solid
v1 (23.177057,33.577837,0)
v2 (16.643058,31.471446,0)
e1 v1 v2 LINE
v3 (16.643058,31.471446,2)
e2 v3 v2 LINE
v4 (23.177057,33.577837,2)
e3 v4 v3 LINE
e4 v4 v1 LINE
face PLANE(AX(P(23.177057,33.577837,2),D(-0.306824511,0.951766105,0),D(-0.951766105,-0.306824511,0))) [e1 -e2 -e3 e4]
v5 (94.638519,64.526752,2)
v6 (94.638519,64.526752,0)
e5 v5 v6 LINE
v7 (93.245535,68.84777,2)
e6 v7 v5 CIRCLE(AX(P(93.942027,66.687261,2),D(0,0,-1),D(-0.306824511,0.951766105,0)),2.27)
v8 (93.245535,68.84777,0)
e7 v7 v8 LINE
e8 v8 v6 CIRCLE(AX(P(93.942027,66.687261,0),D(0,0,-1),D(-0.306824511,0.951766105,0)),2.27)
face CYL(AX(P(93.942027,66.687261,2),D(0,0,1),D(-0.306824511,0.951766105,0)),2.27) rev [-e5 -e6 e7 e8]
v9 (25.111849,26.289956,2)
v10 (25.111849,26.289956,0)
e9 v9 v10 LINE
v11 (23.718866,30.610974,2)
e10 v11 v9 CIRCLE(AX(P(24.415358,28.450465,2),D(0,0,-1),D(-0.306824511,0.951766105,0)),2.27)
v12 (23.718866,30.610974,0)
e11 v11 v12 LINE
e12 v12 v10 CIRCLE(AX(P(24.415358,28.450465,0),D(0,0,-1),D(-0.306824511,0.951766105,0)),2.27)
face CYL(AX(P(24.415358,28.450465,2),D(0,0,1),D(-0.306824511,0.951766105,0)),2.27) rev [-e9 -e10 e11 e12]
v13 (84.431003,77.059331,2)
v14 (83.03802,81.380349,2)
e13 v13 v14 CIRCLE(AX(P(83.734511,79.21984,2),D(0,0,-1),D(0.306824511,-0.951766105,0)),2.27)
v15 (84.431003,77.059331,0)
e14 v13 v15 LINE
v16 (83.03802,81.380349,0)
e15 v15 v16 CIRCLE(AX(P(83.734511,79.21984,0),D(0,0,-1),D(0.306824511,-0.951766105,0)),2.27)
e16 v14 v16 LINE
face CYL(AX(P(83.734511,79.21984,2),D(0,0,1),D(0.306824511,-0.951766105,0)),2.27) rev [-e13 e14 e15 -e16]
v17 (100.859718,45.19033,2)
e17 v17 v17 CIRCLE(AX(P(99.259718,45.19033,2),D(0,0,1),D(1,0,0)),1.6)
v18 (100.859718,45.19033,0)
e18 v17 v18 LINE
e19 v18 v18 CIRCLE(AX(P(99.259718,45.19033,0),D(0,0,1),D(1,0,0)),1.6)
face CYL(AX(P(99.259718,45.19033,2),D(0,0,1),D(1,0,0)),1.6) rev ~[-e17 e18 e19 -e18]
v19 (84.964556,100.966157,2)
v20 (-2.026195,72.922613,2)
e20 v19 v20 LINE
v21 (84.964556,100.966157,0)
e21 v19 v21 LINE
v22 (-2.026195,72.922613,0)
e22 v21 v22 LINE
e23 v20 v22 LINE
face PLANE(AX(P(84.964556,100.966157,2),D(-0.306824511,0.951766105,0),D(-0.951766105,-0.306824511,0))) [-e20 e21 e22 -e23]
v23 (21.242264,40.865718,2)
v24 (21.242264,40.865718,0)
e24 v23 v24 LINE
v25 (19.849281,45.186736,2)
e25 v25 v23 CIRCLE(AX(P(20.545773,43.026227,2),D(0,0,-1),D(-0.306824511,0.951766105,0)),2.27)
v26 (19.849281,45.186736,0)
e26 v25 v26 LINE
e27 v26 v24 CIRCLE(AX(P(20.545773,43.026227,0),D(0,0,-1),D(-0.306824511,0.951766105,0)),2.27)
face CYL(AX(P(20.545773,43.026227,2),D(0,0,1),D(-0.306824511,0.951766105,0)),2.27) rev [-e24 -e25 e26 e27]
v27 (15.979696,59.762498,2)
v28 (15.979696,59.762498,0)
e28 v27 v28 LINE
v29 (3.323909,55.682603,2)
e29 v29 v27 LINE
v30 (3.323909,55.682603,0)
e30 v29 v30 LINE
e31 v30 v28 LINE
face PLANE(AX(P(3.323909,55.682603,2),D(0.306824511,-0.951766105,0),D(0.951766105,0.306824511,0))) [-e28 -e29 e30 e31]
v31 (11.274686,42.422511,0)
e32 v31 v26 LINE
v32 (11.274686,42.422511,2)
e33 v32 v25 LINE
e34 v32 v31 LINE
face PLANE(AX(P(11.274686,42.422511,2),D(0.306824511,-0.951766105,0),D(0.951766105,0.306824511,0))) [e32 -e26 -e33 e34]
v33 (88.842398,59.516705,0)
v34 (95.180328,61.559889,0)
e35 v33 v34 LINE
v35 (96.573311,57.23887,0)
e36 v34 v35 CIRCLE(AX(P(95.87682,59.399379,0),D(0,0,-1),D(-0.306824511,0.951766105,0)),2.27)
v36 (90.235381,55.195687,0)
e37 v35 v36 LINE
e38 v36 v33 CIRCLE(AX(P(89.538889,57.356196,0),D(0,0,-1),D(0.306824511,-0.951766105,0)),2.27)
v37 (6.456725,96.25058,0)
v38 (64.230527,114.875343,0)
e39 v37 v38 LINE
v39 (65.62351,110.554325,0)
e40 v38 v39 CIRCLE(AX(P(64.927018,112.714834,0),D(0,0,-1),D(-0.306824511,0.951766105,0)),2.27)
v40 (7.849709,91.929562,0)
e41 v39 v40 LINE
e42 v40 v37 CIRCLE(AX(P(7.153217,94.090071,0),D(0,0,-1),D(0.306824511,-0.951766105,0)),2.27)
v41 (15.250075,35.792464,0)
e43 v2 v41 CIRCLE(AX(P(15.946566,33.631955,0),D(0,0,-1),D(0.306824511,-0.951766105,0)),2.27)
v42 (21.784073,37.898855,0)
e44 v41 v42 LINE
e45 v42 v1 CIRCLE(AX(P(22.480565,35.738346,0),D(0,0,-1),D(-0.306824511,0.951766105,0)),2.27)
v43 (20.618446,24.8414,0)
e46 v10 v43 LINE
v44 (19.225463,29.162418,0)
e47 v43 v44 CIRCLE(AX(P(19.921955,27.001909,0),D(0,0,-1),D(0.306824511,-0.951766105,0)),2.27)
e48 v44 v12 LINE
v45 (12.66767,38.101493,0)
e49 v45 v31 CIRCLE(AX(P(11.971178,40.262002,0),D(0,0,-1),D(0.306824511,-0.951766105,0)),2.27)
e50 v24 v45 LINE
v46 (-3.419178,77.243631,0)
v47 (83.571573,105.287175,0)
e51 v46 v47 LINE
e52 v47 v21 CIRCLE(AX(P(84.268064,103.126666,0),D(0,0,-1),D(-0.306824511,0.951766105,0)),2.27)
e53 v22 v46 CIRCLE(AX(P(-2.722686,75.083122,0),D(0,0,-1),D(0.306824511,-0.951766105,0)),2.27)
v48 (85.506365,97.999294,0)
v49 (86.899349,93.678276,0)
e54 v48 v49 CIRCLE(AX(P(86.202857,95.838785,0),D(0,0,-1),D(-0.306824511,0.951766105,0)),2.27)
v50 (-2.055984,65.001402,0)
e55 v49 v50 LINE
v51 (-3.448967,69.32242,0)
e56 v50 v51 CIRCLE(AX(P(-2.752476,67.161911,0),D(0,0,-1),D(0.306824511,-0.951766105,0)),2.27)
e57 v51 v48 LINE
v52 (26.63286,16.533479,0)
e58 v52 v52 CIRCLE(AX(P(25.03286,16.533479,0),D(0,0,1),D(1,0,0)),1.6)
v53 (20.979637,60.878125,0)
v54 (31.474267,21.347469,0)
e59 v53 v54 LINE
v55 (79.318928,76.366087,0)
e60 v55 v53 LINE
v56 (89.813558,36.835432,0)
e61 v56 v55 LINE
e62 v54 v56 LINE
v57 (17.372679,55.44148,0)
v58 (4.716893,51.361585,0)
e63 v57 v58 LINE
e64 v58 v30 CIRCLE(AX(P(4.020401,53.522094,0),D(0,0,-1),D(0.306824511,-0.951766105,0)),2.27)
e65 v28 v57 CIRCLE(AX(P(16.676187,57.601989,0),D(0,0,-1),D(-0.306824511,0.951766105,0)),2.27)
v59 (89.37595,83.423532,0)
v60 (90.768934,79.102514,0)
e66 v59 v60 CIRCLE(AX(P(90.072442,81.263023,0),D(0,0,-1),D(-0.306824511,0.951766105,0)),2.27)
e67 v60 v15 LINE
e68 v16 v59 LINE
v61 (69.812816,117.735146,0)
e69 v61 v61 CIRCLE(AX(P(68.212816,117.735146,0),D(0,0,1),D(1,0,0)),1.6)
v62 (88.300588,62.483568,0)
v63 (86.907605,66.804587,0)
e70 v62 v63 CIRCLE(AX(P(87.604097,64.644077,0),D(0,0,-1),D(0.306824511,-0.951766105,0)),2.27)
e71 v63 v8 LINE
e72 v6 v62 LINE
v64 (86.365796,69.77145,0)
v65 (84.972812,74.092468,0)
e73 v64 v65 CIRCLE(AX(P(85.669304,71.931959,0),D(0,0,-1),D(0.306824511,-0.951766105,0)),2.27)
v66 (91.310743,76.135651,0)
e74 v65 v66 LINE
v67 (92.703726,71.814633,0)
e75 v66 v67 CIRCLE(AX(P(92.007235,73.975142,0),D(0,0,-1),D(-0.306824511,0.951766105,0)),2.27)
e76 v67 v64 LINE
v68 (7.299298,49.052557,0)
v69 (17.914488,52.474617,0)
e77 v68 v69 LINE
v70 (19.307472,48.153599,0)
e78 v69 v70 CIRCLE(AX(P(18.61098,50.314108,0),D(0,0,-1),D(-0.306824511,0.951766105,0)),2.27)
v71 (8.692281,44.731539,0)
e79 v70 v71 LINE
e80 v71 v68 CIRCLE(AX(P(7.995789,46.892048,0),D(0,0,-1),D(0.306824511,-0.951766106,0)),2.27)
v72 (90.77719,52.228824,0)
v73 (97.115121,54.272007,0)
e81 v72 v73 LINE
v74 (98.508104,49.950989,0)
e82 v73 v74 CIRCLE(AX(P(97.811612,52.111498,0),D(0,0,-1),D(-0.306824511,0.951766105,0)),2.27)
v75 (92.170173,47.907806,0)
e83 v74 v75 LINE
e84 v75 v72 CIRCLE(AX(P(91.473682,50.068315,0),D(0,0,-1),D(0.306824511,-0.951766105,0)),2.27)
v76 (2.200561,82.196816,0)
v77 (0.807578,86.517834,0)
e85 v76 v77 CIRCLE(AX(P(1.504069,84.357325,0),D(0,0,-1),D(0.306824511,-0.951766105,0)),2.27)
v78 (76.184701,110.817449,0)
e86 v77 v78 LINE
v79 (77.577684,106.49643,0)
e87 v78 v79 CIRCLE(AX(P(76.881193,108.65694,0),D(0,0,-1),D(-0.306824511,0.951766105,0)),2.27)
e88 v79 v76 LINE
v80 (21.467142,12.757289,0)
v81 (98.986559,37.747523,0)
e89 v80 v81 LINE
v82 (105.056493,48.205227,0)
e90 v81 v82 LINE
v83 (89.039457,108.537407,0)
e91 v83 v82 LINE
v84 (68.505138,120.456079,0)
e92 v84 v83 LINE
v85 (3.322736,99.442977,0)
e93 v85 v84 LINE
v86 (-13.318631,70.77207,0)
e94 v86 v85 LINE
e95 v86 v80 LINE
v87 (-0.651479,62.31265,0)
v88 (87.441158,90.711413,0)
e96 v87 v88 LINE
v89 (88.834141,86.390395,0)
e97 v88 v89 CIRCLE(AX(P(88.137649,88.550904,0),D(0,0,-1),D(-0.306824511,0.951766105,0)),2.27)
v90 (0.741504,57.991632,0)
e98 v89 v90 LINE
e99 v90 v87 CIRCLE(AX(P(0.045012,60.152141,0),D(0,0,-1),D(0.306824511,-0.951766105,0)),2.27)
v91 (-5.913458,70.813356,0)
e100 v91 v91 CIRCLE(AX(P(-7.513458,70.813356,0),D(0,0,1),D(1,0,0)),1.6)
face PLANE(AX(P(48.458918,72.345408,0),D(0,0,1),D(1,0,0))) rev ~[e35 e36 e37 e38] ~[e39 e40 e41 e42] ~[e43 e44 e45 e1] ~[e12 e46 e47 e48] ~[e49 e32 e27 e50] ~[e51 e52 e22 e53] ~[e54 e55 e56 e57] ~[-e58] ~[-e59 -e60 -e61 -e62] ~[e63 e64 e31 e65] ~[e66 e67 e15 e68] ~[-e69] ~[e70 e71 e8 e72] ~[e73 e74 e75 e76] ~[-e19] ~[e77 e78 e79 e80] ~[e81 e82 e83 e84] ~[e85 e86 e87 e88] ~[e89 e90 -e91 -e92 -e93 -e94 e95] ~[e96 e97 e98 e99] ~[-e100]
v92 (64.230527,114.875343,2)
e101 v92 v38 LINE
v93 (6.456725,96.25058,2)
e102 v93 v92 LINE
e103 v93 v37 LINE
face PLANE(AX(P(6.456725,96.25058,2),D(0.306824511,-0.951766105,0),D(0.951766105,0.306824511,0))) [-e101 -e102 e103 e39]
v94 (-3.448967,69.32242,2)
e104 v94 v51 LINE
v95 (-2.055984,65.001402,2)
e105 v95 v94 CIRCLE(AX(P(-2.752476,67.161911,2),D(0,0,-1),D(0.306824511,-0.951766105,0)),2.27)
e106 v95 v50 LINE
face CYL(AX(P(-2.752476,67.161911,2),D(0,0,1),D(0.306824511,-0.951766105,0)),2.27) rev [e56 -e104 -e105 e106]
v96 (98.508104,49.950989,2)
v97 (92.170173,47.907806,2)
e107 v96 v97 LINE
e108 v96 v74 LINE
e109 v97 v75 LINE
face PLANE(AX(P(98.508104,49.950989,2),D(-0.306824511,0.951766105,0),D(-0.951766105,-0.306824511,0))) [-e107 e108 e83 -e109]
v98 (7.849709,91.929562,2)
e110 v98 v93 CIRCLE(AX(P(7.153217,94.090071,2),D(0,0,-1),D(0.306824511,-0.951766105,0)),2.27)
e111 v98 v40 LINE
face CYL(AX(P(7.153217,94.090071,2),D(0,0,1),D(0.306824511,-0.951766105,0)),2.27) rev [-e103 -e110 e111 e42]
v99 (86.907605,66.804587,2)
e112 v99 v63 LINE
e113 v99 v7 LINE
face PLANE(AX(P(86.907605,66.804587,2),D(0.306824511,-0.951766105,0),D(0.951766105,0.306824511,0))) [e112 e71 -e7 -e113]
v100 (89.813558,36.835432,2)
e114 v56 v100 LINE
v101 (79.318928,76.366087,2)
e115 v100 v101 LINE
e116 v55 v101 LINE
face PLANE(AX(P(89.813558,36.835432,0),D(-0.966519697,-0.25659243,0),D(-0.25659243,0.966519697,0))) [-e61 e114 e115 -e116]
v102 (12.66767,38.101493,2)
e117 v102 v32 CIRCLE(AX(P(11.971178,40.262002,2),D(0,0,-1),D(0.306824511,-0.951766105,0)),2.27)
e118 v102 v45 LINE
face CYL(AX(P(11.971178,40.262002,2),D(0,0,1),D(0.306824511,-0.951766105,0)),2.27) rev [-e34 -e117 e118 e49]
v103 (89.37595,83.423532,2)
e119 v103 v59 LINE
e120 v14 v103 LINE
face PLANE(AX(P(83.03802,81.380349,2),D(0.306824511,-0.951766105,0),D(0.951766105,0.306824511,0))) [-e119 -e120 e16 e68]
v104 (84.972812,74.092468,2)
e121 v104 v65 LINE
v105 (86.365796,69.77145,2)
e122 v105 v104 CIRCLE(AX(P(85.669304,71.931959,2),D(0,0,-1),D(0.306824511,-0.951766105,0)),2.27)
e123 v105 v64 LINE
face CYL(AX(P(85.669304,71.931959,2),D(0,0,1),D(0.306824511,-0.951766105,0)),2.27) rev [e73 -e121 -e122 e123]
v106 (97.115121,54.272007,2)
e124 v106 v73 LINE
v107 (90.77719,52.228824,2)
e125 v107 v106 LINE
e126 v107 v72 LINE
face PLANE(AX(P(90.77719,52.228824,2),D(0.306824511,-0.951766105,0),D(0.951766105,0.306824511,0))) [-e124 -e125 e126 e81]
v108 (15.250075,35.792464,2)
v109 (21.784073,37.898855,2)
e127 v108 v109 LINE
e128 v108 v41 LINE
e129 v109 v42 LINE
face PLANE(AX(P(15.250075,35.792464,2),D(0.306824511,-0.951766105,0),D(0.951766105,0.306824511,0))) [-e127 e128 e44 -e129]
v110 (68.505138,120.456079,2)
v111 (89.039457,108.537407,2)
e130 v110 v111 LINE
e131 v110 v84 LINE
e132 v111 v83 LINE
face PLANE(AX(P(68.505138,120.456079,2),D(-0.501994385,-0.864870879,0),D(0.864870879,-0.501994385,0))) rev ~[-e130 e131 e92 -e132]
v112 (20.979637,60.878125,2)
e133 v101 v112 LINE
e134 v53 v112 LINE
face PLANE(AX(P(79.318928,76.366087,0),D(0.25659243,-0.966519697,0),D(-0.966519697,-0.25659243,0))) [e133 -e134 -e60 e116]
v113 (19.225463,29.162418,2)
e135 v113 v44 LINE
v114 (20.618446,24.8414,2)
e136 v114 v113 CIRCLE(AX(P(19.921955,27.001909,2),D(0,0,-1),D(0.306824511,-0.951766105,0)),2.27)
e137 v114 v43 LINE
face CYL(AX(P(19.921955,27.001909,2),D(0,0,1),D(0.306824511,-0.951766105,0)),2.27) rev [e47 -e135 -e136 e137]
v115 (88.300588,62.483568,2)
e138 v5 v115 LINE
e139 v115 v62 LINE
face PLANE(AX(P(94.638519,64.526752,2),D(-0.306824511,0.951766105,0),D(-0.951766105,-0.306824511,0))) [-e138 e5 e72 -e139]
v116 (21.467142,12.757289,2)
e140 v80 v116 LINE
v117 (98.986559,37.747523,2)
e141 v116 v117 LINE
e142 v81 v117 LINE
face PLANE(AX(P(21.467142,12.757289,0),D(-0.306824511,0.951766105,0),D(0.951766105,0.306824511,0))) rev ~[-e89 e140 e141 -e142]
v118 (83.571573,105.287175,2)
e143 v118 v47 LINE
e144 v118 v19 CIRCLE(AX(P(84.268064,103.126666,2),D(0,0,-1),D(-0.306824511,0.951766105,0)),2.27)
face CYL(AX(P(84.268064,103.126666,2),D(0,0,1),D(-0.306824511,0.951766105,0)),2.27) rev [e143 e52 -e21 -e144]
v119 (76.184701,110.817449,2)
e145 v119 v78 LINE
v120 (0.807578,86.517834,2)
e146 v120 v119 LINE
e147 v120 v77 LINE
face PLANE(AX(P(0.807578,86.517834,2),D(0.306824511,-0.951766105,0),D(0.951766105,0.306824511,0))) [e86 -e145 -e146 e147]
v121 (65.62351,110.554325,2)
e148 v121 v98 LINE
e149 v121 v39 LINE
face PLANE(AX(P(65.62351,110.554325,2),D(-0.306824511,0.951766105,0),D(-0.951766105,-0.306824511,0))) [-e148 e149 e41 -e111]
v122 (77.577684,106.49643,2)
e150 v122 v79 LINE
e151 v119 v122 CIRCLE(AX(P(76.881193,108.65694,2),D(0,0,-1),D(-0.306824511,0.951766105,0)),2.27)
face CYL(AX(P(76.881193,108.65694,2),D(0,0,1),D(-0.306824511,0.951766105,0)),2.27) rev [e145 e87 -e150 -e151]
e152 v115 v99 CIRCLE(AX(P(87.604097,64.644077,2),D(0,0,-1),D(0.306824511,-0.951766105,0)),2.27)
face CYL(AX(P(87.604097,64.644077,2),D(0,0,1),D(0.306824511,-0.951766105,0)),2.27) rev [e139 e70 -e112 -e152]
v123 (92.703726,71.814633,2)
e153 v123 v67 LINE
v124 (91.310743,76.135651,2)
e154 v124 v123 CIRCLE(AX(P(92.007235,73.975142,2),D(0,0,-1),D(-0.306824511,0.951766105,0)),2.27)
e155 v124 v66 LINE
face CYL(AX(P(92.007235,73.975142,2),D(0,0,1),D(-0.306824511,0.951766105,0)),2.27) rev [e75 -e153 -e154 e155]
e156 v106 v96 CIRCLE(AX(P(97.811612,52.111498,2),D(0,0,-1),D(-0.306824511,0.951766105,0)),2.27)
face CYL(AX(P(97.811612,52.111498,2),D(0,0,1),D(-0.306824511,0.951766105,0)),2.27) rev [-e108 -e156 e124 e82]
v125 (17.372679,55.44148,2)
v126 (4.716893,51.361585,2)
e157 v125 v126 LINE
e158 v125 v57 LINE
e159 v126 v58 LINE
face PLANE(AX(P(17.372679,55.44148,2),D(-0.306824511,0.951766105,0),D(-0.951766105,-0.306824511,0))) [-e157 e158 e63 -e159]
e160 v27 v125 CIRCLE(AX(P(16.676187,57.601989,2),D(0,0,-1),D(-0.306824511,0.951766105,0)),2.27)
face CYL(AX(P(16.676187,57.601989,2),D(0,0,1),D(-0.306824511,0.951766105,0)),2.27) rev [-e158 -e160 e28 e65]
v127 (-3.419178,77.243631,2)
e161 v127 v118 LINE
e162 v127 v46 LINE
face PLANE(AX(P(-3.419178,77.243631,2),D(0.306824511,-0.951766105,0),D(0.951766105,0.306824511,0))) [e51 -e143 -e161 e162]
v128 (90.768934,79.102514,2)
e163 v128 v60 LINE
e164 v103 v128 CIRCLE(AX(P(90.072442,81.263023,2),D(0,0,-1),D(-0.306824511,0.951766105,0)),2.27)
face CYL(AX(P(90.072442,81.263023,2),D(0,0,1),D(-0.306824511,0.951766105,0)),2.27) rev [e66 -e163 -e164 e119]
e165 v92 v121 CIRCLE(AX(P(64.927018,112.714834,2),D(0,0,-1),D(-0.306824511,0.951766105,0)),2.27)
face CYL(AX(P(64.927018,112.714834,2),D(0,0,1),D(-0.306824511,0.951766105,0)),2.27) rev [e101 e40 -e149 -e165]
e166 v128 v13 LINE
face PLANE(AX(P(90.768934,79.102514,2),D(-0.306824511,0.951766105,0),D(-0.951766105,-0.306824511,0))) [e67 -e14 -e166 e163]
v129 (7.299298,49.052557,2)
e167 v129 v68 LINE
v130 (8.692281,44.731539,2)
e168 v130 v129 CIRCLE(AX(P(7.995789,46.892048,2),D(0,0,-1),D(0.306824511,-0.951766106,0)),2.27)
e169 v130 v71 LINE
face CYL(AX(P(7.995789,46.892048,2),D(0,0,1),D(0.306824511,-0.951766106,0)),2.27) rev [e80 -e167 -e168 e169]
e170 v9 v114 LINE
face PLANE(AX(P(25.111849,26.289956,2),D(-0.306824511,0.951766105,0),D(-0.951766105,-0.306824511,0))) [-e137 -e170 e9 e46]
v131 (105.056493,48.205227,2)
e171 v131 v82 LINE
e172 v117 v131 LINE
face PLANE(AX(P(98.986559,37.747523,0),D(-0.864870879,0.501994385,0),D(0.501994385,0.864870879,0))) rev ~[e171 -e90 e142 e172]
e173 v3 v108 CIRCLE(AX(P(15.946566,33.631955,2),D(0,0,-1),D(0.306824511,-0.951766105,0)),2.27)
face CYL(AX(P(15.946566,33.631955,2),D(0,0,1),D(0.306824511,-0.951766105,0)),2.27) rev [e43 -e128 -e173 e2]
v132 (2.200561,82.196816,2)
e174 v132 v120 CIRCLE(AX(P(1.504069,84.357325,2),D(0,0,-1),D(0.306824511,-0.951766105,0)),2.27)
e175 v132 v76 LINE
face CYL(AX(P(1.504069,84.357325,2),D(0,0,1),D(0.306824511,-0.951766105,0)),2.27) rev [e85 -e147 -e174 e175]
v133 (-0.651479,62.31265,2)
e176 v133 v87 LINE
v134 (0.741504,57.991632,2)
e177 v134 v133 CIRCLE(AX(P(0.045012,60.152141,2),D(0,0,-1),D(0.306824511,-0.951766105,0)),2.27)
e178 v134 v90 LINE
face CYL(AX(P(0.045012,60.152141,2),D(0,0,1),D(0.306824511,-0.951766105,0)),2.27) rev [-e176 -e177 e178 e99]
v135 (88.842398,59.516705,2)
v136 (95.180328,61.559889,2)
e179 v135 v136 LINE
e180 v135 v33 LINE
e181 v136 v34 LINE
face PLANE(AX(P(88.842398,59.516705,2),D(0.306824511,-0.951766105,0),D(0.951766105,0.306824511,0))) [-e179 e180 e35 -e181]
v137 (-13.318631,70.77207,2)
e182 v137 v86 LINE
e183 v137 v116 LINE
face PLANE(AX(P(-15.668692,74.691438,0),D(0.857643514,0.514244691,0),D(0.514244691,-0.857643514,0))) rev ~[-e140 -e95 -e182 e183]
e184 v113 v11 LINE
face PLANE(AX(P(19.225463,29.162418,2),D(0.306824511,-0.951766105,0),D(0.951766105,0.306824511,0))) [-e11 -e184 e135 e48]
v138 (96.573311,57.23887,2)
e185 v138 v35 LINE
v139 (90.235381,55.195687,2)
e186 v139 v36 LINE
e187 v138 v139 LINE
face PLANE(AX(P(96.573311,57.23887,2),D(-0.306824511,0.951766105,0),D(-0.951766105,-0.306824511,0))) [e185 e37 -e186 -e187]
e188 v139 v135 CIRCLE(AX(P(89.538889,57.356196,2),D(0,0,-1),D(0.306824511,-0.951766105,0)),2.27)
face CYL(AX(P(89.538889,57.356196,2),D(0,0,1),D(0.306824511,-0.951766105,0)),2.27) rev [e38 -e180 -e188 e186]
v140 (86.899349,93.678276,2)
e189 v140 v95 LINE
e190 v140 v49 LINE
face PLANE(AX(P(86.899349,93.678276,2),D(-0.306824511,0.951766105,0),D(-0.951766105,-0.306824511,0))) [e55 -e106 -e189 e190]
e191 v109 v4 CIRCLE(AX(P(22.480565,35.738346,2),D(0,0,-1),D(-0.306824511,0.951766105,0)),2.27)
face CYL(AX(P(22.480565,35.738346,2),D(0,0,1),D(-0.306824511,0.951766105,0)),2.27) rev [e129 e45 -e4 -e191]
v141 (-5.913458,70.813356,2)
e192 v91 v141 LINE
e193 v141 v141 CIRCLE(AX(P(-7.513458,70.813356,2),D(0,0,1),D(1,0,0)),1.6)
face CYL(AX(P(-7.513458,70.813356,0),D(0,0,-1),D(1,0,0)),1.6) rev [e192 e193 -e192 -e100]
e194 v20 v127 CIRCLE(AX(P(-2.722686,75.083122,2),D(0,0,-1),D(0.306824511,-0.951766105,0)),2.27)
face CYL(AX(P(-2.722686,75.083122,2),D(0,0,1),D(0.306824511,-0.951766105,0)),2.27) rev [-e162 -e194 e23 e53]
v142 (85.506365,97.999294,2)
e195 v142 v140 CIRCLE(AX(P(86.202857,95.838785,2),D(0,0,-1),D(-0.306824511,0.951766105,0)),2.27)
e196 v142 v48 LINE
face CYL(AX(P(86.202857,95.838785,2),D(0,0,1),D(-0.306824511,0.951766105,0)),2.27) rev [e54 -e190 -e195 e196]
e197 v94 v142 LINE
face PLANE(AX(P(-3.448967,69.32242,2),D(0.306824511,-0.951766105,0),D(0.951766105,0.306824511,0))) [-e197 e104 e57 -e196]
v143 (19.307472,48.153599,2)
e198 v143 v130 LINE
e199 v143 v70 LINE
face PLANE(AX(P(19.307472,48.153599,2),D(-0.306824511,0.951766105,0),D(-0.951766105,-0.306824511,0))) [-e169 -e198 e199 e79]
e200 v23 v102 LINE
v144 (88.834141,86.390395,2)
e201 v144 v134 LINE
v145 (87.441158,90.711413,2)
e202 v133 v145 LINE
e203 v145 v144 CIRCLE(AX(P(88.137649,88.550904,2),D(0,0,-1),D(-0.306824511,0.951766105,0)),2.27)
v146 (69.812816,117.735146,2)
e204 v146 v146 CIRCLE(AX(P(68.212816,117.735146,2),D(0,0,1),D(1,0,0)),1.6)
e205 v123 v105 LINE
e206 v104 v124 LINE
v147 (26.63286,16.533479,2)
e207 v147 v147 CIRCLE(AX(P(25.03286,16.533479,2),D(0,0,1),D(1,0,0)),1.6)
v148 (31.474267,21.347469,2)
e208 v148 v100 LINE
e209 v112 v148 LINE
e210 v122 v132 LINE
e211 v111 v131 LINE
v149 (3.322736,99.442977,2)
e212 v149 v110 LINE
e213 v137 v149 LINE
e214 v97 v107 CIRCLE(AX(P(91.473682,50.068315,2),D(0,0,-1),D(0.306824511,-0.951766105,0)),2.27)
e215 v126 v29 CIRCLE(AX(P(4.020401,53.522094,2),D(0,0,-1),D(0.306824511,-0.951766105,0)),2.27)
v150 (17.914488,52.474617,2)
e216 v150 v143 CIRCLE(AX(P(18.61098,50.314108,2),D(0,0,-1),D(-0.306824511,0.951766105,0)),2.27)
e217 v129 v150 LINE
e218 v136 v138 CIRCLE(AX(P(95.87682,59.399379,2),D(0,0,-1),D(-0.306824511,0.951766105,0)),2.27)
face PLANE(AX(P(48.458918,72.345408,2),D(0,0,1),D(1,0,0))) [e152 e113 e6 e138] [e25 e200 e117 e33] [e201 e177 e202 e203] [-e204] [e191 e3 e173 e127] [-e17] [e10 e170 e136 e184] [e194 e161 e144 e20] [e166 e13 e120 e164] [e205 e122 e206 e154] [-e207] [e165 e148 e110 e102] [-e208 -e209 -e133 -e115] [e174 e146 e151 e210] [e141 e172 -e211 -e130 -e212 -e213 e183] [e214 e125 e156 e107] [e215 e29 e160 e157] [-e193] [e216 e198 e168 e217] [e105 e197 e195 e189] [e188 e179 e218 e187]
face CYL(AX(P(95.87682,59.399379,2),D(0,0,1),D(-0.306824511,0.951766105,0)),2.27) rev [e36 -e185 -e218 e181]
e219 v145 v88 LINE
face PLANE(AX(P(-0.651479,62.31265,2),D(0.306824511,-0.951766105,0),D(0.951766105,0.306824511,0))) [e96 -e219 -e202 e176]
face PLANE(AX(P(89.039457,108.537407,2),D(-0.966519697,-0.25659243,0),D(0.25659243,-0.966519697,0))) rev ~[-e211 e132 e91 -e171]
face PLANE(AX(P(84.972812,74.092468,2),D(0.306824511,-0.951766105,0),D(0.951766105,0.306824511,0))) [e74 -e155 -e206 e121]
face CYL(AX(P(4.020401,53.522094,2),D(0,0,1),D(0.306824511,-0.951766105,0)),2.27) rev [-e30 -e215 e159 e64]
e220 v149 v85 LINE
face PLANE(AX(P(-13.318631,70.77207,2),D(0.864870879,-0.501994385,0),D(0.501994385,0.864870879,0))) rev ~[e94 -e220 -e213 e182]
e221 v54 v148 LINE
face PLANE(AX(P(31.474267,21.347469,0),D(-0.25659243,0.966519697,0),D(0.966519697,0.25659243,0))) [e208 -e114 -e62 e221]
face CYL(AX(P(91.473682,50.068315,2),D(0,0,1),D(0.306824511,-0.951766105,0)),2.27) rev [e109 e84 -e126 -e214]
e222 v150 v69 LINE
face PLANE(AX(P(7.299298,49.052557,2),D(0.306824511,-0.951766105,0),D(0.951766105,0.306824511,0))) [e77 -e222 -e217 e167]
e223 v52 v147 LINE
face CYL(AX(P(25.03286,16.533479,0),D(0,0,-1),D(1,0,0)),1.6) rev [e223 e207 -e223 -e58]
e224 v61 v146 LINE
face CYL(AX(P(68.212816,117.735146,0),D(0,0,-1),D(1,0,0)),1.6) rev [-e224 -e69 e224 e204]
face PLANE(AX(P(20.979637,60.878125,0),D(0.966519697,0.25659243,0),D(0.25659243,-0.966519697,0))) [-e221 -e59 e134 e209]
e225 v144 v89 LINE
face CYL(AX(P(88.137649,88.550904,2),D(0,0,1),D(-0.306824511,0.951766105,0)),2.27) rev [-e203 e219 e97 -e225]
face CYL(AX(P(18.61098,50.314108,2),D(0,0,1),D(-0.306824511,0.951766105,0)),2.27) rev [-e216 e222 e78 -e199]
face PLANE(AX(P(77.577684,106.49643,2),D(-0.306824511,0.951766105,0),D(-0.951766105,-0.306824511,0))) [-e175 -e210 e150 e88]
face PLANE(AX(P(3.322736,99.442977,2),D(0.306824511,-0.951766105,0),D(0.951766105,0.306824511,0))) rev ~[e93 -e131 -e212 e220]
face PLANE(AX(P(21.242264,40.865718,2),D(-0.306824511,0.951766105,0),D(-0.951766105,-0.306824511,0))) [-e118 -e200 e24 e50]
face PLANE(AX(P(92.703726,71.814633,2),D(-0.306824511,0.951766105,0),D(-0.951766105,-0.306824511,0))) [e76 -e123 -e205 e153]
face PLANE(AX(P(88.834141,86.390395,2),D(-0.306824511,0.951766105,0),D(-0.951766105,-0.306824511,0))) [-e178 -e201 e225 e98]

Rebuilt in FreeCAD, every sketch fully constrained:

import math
import FreeCAD as App
import Part
import Sketcher
from FreeCAD import Vector

doc = App.newDocument("Part")
body = doc.addObject("PartDesign::Body", "Body")

sketch1 = body.newObject("Sketcher::SketchObject", "Sketch")
sketch1.AttachmentSupport = (doc.getObject("XY_Plane"), [""])
sketch1.MapMode = "FlatFace"
sketch1.addGeometry(Part.LineSegment(Vector(21.5, 12.8, 0), Vector(99, 37.7, 0)), False)
sketch1.addGeometry(Part.LineSegment(Vector(99, 37.7, 0), Vector(108.6, 54.3, 0)), False)
sketch1.addGeometry(Part.LineSegment(Vector(108.6, 54.3, 0), Vector(91.5, 118.7, 0)), False)
sketch1.addGeometry(Part.LineSegment(Vector(91.5, 118.7, 0), Vector(69.7, 131.3, 0)), False)
sketch1.addGeometry(Part.LineSegment(Vector(69.7, 131.3, 0), Vector(5.1, 110.5, 0)), False)
sketch1.addGeometry(Part.LineSegment(Vector(5.1, 110.5, 0), Vector(-15.7, 74.7, 0)), False)
sketch1.addGeometry(Part.LineSegment(Vector(-15.7, 74.7, 0), Vector(21.5, 12.8, 0)), False)
sketch1.addGeometry(Part.Circle(Vector(25, 16.5, 0), Vector(0, 0, 1), 1.6), False)
sketch1.addGeometry(Part.LineSegment(Vector(89.8, 36.8, 0), Vector(31.5, 21.3, 0)), False)
sketch1.addGeometry(Part.LineSegment(Vector(31.5, 21.3, 0), Vector(21, 60.9, 0)), False)
sketch1.addGeometry(Part.LineSegment(Vector(21, 60.9, 0), Vector(79.3, 76.4, 0)), False)
sketch1.addGeometry(Part.LineSegment(Vector(79.3, 76.4, 0), Vector(89.8, 36.8, 0)), False)
sketch1.addGeometry(Part.Circle(Vector(-7.5, 70.8, 0), Vector(0, 0, 1), 1.6), False)
sketch1.addGeometry(Part.Circle(Vector(68.2, 117.7, 0), Vector(0, 0, 1), 1.6), False)
sketch1.addConstraint(Sketcher.Constraint("Coincident", 0, 2, 1, 1))
sketch1.addConstraint(Sketcher.Constraint("Coincident", 1, 2, 2, 1))
sketch1.addConstraint(Sketcher.Constraint("Coincident", 2, 2, 3, 1))
sketch1.addConstraint(Sketcher.Constraint("Coincident", 3, 2, 4, 1))
sketch1.addConstraint(Sketcher.Constraint("Coincident", 4, 2, 5, 1))
sketch1.addConstraint(Sketcher.Constraint("Coincident", 5, 2, 6, 1))
sketch1.addConstraint(Sketcher.Constraint("Coincident", 6, 2, 0, 1))
sketch1.addConstraint(Sketcher.Constraint("Coincident", 8, 2, 9, 1))
sketch1.addConstraint(Sketcher.Constraint("Coincident", 9, 2, 10, 1))
sketch1.addConstraint(Sketcher.Constraint("Coincident", 10, 2, 11, 1))
sketch1.addConstraint(Sketcher.Constraint("Coincident", 11, 2, 8, 1))
sketch1.addConstraint(Sketcher.Constraint("Equal", 7, 12))
sketch1.addConstraint(Sketcher.Constraint("Equal", 12, 13))
sketch1.addConstraint(Sketcher.Constraint("Perpendicular", 1, 3))
sketch1.addConstraint(Sketcher.Constraint("Parallel", 0, 4))
sketch1.addConstraint(Sketcher.Constraint("Perpendicular", 3, 5))
sketch1.addConstraint(Sketcher.Constraint("Perpendicular", 2, 8))
sketch1.addConstraint(Sketcher.Constraint("Perpendicular", 8, 9))
sketch1.addConstraint(Sketcher.Constraint("Perpendicular", 9, 10))
sketch1.addConstraint(Sketcher.Constraint("Perpendicular", 10, 11))
sketch1.addConstraint(Sketcher.Constraint("Diameter", 7, 3.2))
sketch1.addConstraint(Sketcher.Constraint("Distance", 9, 40.9))
sketch1.addConstraint(Sketcher.Constraint("DistanceX", 11, 2, 0, 2, 9.173001))
sketch1.addConstraint(Sketcher.Constraint("DistanceY", -1, 1, 4, 2, 110.534101))
sketch1.addConstraint(Sketcher.Constraint("DistanceX", 7, 3, 0, 2, 73.953699))
sketch1.addConstraint(Sketcher.Constraint("DistanceY", 0, 2, 2, 2, 80.9089))
sketch1.addConstraint(Sketcher.Constraint("DistanceX", 3, 2, 1, 2, 38.9317))
sketch1.addConstraint(Sketcher.Constraint("DistanceX", 12, 3, 6, 2, 28.9806))
sketch1.addConstraint(Sketcher.Constraint("DistanceY", 6, 2, 1, 2, 41.563499))
sketch1.addConstraint(Sketcher.Constraint("DistanceX", 10, 2, 1, 2, 29.287201))
sketch1.addConstraint(Sketcher.Constraint("DistanceY", 1, 2, 10, 2, 22.045299))
sketch1.addConstraint(Sketcher.Constraint("Distance", 0, 81.447969))
sketch1.addConstraint(Sketcher.Constraint("Distance", 5, 41.442791))
sketch1.addConstraint(Sketcher.Constraint("DistanceX", -1, 1, 7, 3, 25.03286))
sketch1.addConstraint(Sketcher.Constraint("DistanceY", -1, 1, 7, 3, 16.533479))
sketch1.addConstraint(Sketcher.Constraint("DistanceX", 12, 3, -1, 1, 7.513458))
sketch1.addConstraint(Sketcher.Constraint("DistanceX", -1, 1, 1, 2, 108.606129))
sketch1.addConstraint(Sketcher.Constraint("DistanceY", -1, 1, 1, 2, 54.320788))
sketch1.addConstraint(Sketcher.Constraint("DistanceY", -1, 1, 8, 2, 21.347469))
sketch1.addConstraint(Sketcher.Constraint("DistanceY", 12, 3, 13, 3, 46.921791))
sketch1.addConstraint(Sketcher.Constraint("DistanceY", 1, 2, 13, 3, 63.414358))
sketch1.addConstraint(Sketcher.Constraint("DistanceX", 4, 2, 13, 3, 63.077459))
pad1 = body.newObject("PartDesign::Pad", "Pad")
pad1.Profile = sketch1
pad1.Length = 2

sketch2 = body.newObject("Sketcher::SketchObject", "Sketch001")
sketch2.AttachmentSupport = (doc.getObject("XY_Plane"), [""])
sketch2.MapMode = "FlatFace"
sketch2.AttachmentOffset = App.Placement(Vector(0, 0, 2), App.Rotation())
sketch2.addGeometry(Part.LineSegment(Vector(68.5, 120.5, 0), Vector(89, 108.5, 0)), False)
sketch2.addGeometry(Part.LineSegment(Vector(89, 108.5, 0), Vector(105.1, 48.2, 0)), False)
sketch2.addGeometry(Part.LineSegment(Vector(105.1, 48.2, 0), Vector(108.6, 54.3, 0)), False)
sketch2.addGeometry(Part.LineSegment(Vector(108.6, 54.3, 0), Vector(91.5, 118.7, 0)), False)
sketch2.addGeometry(Part.LineSegment(Vector(91.5, 118.7, 0), Vector(69.7, 131.3, 0)), False)
sketch2.addGeometry(Part.LineSegment(Vector(69.7, 131.3, 0), Vector(5.1, 110.5, 0)), False)
sketch2.addGeometry(Part.LineSegment(Vector(5.1, 110.5, 0), Vector(-15.7, 74.7, 0)), False)
sketch2.addGeometry(Part.LineSegment(Vector(-15.7, 74.7, 0), Vector(-13.3, 70.8, 0)), False)
sketch2.addGeometry(Part.LineSegment(Vector(-13.3, 70.8, 0), Vector(3.3, 99.4, 0)), False)
sketch2.addGeometry(Part.LineSegment(Vector(3.3, 99.4, 0), Vector(68.5, 120.5, 0)), False)
sketch2.addConstraint(Sketcher.Constraint("Coincident", 0, 2, 1, 1))
sketch2.addConstraint(Sketcher.Constraint("Coincident", 1, 2, 2, 1))
sketch2.addConstraint(Sketcher.Constraint("Coincident", 2, 2, 3, 1))
sketch2.addConstraint(Sketcher.Constraint("Coincident", 3, 2, 4, 1))
sketch2.addConstraint(Sketcher.Constraint("Coincident", 4, 2, 5, 1))
sketch2.addConstraint(Sketcher.Constraint("Coincident", 5, 2, 6, 1))
sketch2.addConstraint(Sketcher.Constraint("Coincident", 6, 2, 7, 1))
sketch2.addConstraint(Sketcher.Constraint("Coincident", 7, 2, 8, 1))
sketch2.addConstraint(Sketcher.Constraint("Coincident", 8, 2, 9, 1))
sketch2.addConstraint(Sketcher.Constraint("Coincident", 9, 2, 0, 1))
sketch2.addConstraint(Sketcher.Constraint("Perpendicular", 0, 2))
sketch2.addConstraint(Sketcher.Constraint("Parallel", 1, 3))
sketch2.addConstraint(Sketcher.Constraint("Perpendicular", 2, 4))
sketch2.addConstraint(Sketcher.Constraint("Perpendicular", 4, 6))
sketch2.addConstraint(Sketcher.Constraint("Parallel", 6, 8))
sketch2.addConstraint(Sketcher.Constraint("Parallel", 5, 9))
sketch2.addConstraint(Sketcher.Constraint("DistanceY", -1, 1, 5, 2, 110.534101))
sketch2.addConstraint(Sketcher.Constraint("DistanceX", 4, 2, 2, 2, 38.9317))
sketch2.addConstraint(Sketcher.Constraint("DistanceX", 5, 2, 0, 2, 83.904101))
sketch2.addConstraint(Sketcher.Constraint("DistanceX", 8, 2, 9, 2, 65.182402))
sketch2.addConstraint(Sketcher.Constraint("Distance", 0, 23.742641))
sketch2.addConstraint(Sketcher.Constraint("Distance", 1, 62.42209))
sketch2.addConstraint(Sketcher.Constraint("Distance", 6, 41.442791))
sketch2.addConstraint(Sketcher.Constraint("DistanceX", -1, 1, 2, 2, 108.606129))
sketch2.addConstraint(Sketcher.Constraint("DistanceY", -1, 1, 2, 2, 54.320788))
sketch2.addConstraint(Sketcher.Constraint("DistanceY", -1, 1, 4, 2, 131.339811))
sketch2.addConstraint(Sketcher.Constraint("DistanceX", 6, 2, -1, 1, 15.668692))
sketch2.addConstraint(Sketcher.Constraint("DistanceY", -1, 1, 6, 2, 74.691438))
sketch2.addConstraint(Sketcher.Constraint("DistanceX", 7, 2, -1, 1, 13.318631))
sketch2.addConstraint(Sketcher.Constraint("DistanceY", -1, 1, 7, 2, 70.77207))
pocket1 = body.newObject("PartDesign::Pocket", "Pocket")
pocket1.Profile = sketch2
pocket1.Length = 2

sketch3 = body.newObject("Sketcher::SketchObject", "Sketch002")
sketch3.AttachmentSupport = (doc.getObject("XY_Plane"), [""])
sketch3.MapMode = "FlatFace"
sketch3.AttachmentOffset = App.Placement(Vector(0, 0, 2), App.Rotation())
sketch3.addGeometry(Part.Circle(Vector(99.3, 45.2, 0), Vector(0, 0, 1), 1.6), False)
sketch3.addGeometry(Part.LineSegment(Vector(64.2, 114.9, 0), Vector(6.5, 96.3, 0)), False)
sketch3.addGeometry(Part.ArcOfCircle(Part.Circle(Vector(7.2, 94.1, 0), Vector(0, 0, 1), 2.3), math.radians(108), math.radians(288)), False)
sketch3.addGeometry(Part.LineSegment(Vector(7.8, 91.9, 0), Vector(65.6, 110.6, 0)), False)
sketch3.addGeometry(Part.ArcOfCircle(Part.Circle(Vector(64.9, 112.7, 0), Vector(0, 0, 1), 2.3), math.radians(-72), math.radians(108)), False)
sketch3.addGeometry(Part.LineSegment(Vector(76.2, 110.8, 0), Vector(0.8, 86.5, 0)), False)
sketch3.addGeometry(Part.ArcOfCircle(Part.Circle(Vector(1.5, 84.4, 0), Vector(0, 0, 1), 2.3), math.radians(108), math.radians(288)), False)
sketch3.addGeometry(Part.LineSegment(Vector(2.2, 82.2, 0), Vector(77.6, 106.5, 0)), False)
sketch3.addGeometry(Part.ArcOfCircle(Part.Circle(Vector(76.9, 108.7, 0), Vector(0, 0, 1), 2.3), math.radians(-72), math.radians(108)), False)
sketch3.addGeometry(Part.LineSegment(Vector(83.6, 105.3, 0), Vector(-3.4, 77.2, 0)), False)
sketch3.addGeometry(Part.ArcOfCircle(Part.Circle(Vector(-2.7, 75.1, 0), Vector(0, 0, 1), 2.3), math.radians(108), math.radians(288)), False)
sketch3.addGeometry(Part.LineSegment(Vector(-2, 72.9, 0), Vector(85, 101, 0)), False)
sketch3.addGeometry(Part.ArcOfCircle(Part.Circle(Vector(84.3, 103.1, 0), Vector(0, 0, 1), 2.3), math.radians(-72), math.radians(108)), False)
sketch3.addGeometry(Part.LineSegment(Vector(85.5, 98, 0), Vector(-3.4, 69.3, 0)), False)
sketch3.addGeometry(Part.ArcOfCircle(Part.Circle(Vector(-2.8, 67.2, 0), Vector(0, 0, 1), 2.3), math.radians(108), math.radians(288)), False)
sketch3.addGeometry(Part.LineSegment(Vector(-2.1, 65, 0), Vector(86.9, 93.7, 0)), False)
sketch3.addGeometry(Part.ArcOfCircle(Part.Circle(Vector(86.2, 95.8, 0), Vector(0, 0, 1), 2.3), math.radians(-72), math.radians(108)), False)
sketch3.addGeometry(Part.LineSegment(Vector(87.4, 90.7, 0), Vector(-0.7, 62.3, 0)), False)
sketch3.addGeometry(Part.ArcOfCircle(Part.Circle(Vector(0, 60.2, 0), Vector(0, 0, 1), 2.3), math.radians(108), math.radians(288)), False)
sketch3.addGeometry(Part.LineSegment(Vector(0.7, 58, 0), Vector(88.8, 86.4, 0)), False)
sketch3.addGeometry(Part.ArcOfCircle(Part.Circle(Vector(88.1, 88.6, 0), Vector(0, 0, 1), 2.3), math.radians(-72), math.radians(108)), False)
sketch3.addGeometry(Part.LineSegment(Vector(89.4, 83.4, 0), Vector(83, 81.4, 0)), False)
sketch3.addGeometry(Part.ArcOfCircle(Part.Circle(Vector(83.7, 79.2, 0), Vector(0, 0, 1), 2.3), math.radians(108), math.radians(288)), False)
sketch3.addGeometry(Part.LineSegment(Vector(84.4, 77.1, 0), Vector(90.8, 79.1, 0)), False)
sketch3.addGeometry(Part.ArcOfCircle(Part.Circle(Vector(90.1, 81.3, 0), Vector(0, 0, 1), 2.3), math.radians(-72), math.radians(108)), False)
sketch3.addGeometry(Part.LineSegment(Vector(16, 59.8, 0), Vector(3.3, 55.7, 0)), False)
sketch3.addGeometry(Part.ArcOfCircle(Part.Circle(Vector(4, 53.5, 0), Vector(0, 0, 1), 2.3), math.radians(108), math.radians(288)), False)
sketch3.addGeometry(Part.LineSegment(Vector(4.7, 51.4, 0), Vector(17.4, 55.4, 0)), False)
sketch3.addGeometry(Part.ArcOfCircle(Part.Circle(Vector(16.7, 57.6, 0), Vector(0, 0, 1), 2.3), math.radians(-72), math.radians(108)), False)
sketch3.addGeometry(Part.LineSegment(Vector(17.9, 52.5, 0), Vector(7.3, 49.1, 0)), False)
sketch3.addGeometry(Part.ArcOfCircle(Part.Circle(Vector(8, 46.9, 0), Vector(0, 0, 1), 2.3), math.radians(108), math.radians(288)), False)
sketch3.addGeometry(Part.LineSegment(Vector(8.7, 44.7, 0), Vector(19.3, 48.2, 0)), False)
sketch3.addGeometry(Part.ArcOfCircle(Part.Circle(Vector(18.6, 50.3, 0), Vector(0, 0, 1), 2.3), math.radians(-72), math.radians(108)), False)
sketch3.addGeometry(Part.LineSegment(Vector(19.8, 45.2, 0), Vector(11.3, 42.4, 0)), False)
sketch3.addGeometry(Part.ArcOfCircle(Part.Circle(Vector(12, 40.3, 0), Vector(0, 0, 1), 2.3), math.radians(108), math.radians(288)), False)
sketch3.addGeometry(Part.LineSegment(Vector(12.7, 38.1, 0), Vector(21.2, 40.9, 0)), False)
sketch3.addGeometry(Part.ArcOfCircle(Part.Circle(Vector(20.5, 43, 0), Vector(0, 0, 1), 2.3), math.radians(-72), math.radians(108)), False)
sketch3.addGeometry(Part.LineSegment(Vector(21.8, 37.9, 0), Vector(15.3, 35.8, 0)), False)
sketch3.addGeometry(Part.ArcOfCircle(Part.Circle(Vector(15.9, 33.6, 0), Vector(0, 0, 1), 2.3), math.radians(108), math.radians(288)), False)
sketch3.addGeometry(Part.LineSegment(Vector(16.6, 31.5, 0), Vector(23.2, 33.6, 0)), False)
sketch3.addGeometry(Part.ArcOfCircle(Part.Circle(Vector(22.5, 35.7, 0), Vector(0, 0, 1), 2.3), math.radians(-72), math.radians(108)), False)
sketch3.addGeometry(Part.LineSegment(Vector(23.7, 30.6, 0), Vector(19.2, 29.2, 0)), False)
sketch3.addGeometry(Part.ArcOfCircle(Part.Circle(Vector(19.9, 27, 0), Vector(0, 0, 1), 2.3), math.radians(108), math.radians(288)), False)
sketch3.addGeometry(Part.LineSegment(Vector(20.6, 24.8, 0), Vector(25.1, 26.3, 0)), False)
sketch3.addGeometry(Part.ArcOfCircle(Part.Circle(Vector(24.4, 28.5, 0), Vector(0, 0, 1), 2.3), math.radians(-72), math.radians(108)), False)
sketch3.addGeometry(Part.LineSegment(Vector(91.3, 76.1, 0), Vector(85, 74.1, 0)), False)
sketch3.addGeometry(Part.ArcOfCircle(Part.Circle(Vector(85.7, 71.9, 0), Vector(0, 0, 1), 2.3), math.radians(108), math.radians(288)), False)
sketch3.addGeometry(Part.LineSegment(Vector(86.4, 69.8, 0), Vector(92.7, 71.8, 0)), False)
sketch3.addGeometry(Part.ArcOfCircle(Part.Circle(Vector(92, 74, 0), Vector(0, 0, 1), 2.3), math.radians(-72), math.radians(108)), False)
sketch3.addGeometry(Part.LineSegment(Vector(93.2, 68.8, 0), Vector(86.9, 66.8, 0)), False)
sketch3.addGeometry(Part.ArcOfCircle(Part.Circle(Vector(87.6, 64.6, 0), Vector(0, 0, 1), 2.3), math.radians(108), math.radians(288)), False)
sketch3.addGeometry(Part.LineSegment(Vector(88.3, 62.5, 0), Vector(94.6, 64.5, 0)), False)
sketch3.addGeometry(Part.ArcOfCircle(Part.Circle(Vector(93.9, 66.7, 0), Vector(0, 0, 1), 2.3), math.radians(-72), math.radians(108)), False)
sketch3.addGeometry(Part.LineSegment(Vector(95.2, 61.6, 0), Vector(88.8, 59.5, 0)), False)
sketch3.addGeometry(Part.ArcOfCircle(Part.Circle(Vector(89.5, 57.4, 0), Vector(0, 0, 1), 2.3), math.radians(108), math.radians(288)), False)
sketch3.addGeometry(Part.LineSegment(Vector(90.2, 55.2, 0), Vector(96.6, 57.2, 0)), False)
sketch3.addGeometry(Part.ArcOfCircle(Part.Circle(Vector(95.9, 59.4, 0), Vector(0, 0, 1), 2.3), math.radians(-72), math.radians(108)), False)
sketch3.addGeometry(Part.LineSegment(Vector(97.1, 54.3, 0), Vector(90.8, 52.2, 0)), False)
sketch3.addGeometry(Part.ArcOfCircle(Part.Circle(Vector(91.5, 50.1, 0), Vector(0, 0, 1), 2.3), math.radians(108), math.radians(288)), False)
sketch3.addGeometry(Part.LineSegment(Vector(92.2, 47.9, 0), Vector(98.5, 50, 0)), False)
sketch3.addGeometry(Part.ArcOfCircle(Part.Circle(Vector(97.8, 52.1, 0), Vector(0, 0, 1), 2.3), math.radians(-72), math.radians(108)), False)
sketch3.addConstraint(Sketcher.Constraint("Tangent", 1, 2, 2, 1))
sketch3.addConstraint(Sketcher.Constraint("Tangent", 2, 2, 3, 1))
sketch3.addConstraint(Sketcher.Constraint("Tangent", 3, 2, 4, 1))
sketch3.addConstraint(Sketcher.Constraint("Tangent", 4, 2, 1, 1))
sketch3.addConstraint(Sketcher.Constraint("Tangent", 5, 2, 6, 1))
sketch3.addConstraint(Sketcher.Constraint("Tangent", 6, 2, 7, 1))
sketch3.addConstraint(Sketcher.Constraint("Tangent", 7, 2, 8, 1))
sketch3.addConstraint(Sketcher.Constraint("Tangent", 8, 2, 5, 1))
sketch3.addConstraint(Sketcher.Constraint("Tangent", 9, 2, 10, 1))
sketch3.addConstraint(Sketcher.Constraint("Tangent", 10, 2, 11, 1))
sketch3.addConstraint(Sketcher.Constraint("Tangent", 11, 2, 12, 1))
sketch3.addConstraint(Sketcher.Constraint("Tangent", 12, 2, 9, 1))
sketch3.addConstraint(Sketcher.Constraint("Tangent", 13, 2, 14, 1))
sketch3.addConstraint(Sketcher.Constraint("Tangent", 14, 2, 15, 1))
sketch3.addConstraint(Sketcher.Constraint("Tangent", 15, 2, 16, 1))
sketch3.addConstraint(Sketcher.Constraint("Tangent", 16, 2, 13, 1))
sketch3.addConstraint(Sketcher.Constraint("Tangent", 17, 2, 18, 1))
sketch3.addConstraint(Sketcher.Constraint("Tangent", 18, 2, 19, 1))
sketch3.addConstraint(Sketcher.Constraint("Tangent", 19, 2, 20, 1))
sketch3.addConstraint(Sketcher.Constraint("Tangent", 20, 2, 17, 1))
sketch3.addConstraint(Sketcher.Constraint("Tangent", 21, 2, 22, 1))
sketch3.addConstraint(Sketcher.Constraint("Tangent", 22, 2, 23, 1))
sketch3.addConstraint(Sketcher.Constraint("Tangent", 23, 2, 24, 1))
sketch3.addConstraint(Sketcher.Constraint("Tangent", 24, 2, 21, 1))
sketch3.addConstraint(Sketcher.Constraint("Tangent", 25, 2, 26, 1))
sketch3.addConstraint(Sketcher.Constraint("Tangent", 26, 2, 27, 1))
sketch3.addConstraint(Sketcher.Constraint("Tangent", 27, 2, 28, 1))
sketch3.addConstraint(Sketcher.Constraint("Tangent", 28, 2, 25, 1))
sketch3.addConstraint(Sketcher.Constraint("Tangent", 29, 2, 30, 1))
sketch3.addConstraint(Sketcher.Constraint("Tangent", 30, 2, 31, 1))
sketch3.addConstraint(Sketcher.Constraint("Tangent", 31, 2, 32, 1))
sketch3.addConstraint(Sketcher.Constraint("Tangent", 32, 2, 29, 1))
sketch3.addConstraint(Sketcher.Constraint("Tangent", 33, 2, 34, 1))
sketch3.addConstraint(Sketcher.Constraint("Tangent", 34, 2, 35, 1))
sketch3.addConstraint(Sketcher.Constraint("Tangent", 35, 2, 36, 1))
sketch3.addConstraint(Sketcher.Constraint("Tangent", 36, 2, 33, 1))
sketch3.addConstraint(Sketcher.Constraint("Tangent", 37, 2, 38, 1))
sketch3.addConstraint(Sketcher.Constraint("Tangent", 38, 2, 39, 1))
sketch3.addConstraint(Sketcher.Constraint("Tangent", 39, 2, 40, 1))
sketch3.addConstraint(Sketcher.Constraint("Tangent", 40, 2, 37, 1))
sketch3.addConstraint(Sketcher.Constraint("Tangent", 41, 2, 42, 1))
sketch3.addConstraint(Sketcher.Constraint("Tangent", 42, 2, 43, 1))
sketch3.addConstraint(Sketcher.Constraint("Tangent", 43, 2, 44, 1))
sketch3.addConstraint(Sketcher.Constraint("Tangent", 44, 2, 41, 1))
sketch3.addConstraint(Sketcher.Constraint("Tangent", 45, 2, 46, 1))
sketch3.addConstraint(Sketcher.Constraint("Tangent", 46, 2, 47, 1))
sketch3.addConstraint(Sketcher.Constraint("Tangent", 47, 2, 48, 1))
sketch3.addConstraint(Sketcher.Constraint("Tangent", 48, 2, 45, 1))
sketch3.addConstraint(Sketcher.Constraint("Tangent", 49, 2, 50, 1))
sketch3.addConstraint(Sketcher.Constraint("Tangent", 50, 2, 51, 1))
sketch3.addConstraint(Sketcher.Constraint("Tangent", 51, 2, 52, 1))
sketch3.addConstraint(Sketcher.Constraint("Tangent", 52, 2, 49, 1))
sketch3.addConstraint(Sketcher.Constraint("Tangent", 53, 2, 54, 1))
sketch3.addConstraint(Sketcher.Constraint("Tangent", 54, 2, 55, 1))
sketch3.addConstraint(Sketcher.Constraint("Tangent", 55, 2, 56, 1))
sketch3.addConstraint(Sketcher.Constraint("Tangent", 56, 2, 53, 1))
sketch3.addConstraint(Sketcher.Constraint("Tangent", 57, 2, 58, 1))
sketch3.addConstraint(Sketcher.Constraint("Tangent", 58, 2, 59, 1))
sketch3.addConstraint(Sketcher.Constraint("Tangent", 59, 2, 60, 1))
sketch3.addConstraint(Sketcher.Constraint("Tangent", 60, 2, 57, 1))
sketch3.addConstraint(Sketcher.Constraint("Equal", 2, 4))
sketch3.addConstraint(Sketcher.Constraint("Equal", 4, 6))
sketch3.addConstraint(Sketcher.Constraint("Equal", 6, 8))
sketch3.addConstraint(Sketcher.Constraint("Equal", 8, 10))
sketch3.addConstraint(Sketcher.Constraint("Equal", 10, 12))
sketch3.addConstraint(Sketcher.Constraint("Equal", 12, 14))
sketch3.addConstraint(Sketcher.Constraint("Equal", 14, 16))
sketch3.addConstraint(Sketcher.Constraint("Equal", 16, 18))
sketch3.addConstraint(Sketcher.Constraint("Equal", 18, 20))
sketch3.addConstraint(Sketcher.Constraint("Equal", 20, 22))
sketch3.addConstraint(Sketcher.Constraint("Equal", 22, 24))
sketch3.addConstraint(Sketcher.Constraint("Equal", 24, 26))
sketch3.addConstraint(Sketcher.Constraint("Equal", 26, 28))
sketch3.addConstraint(Sketcher.Constraint("Equal", 28, 30))
sketch3.addConstraint(Sketcher.Constraint("Equal", 30, 32))
sketch3.addConstraint(Sketcher.Constraint("Equal", 32, 34))
sketch3.addConstraint(Sketcher.Constraint("Equal", 34, 36))
sketch3.addConstraint(Sketcher.Constraint("Equal", 36, 38))
sketch3.addConstraint(Sketcher.Constraint("Equal", 38, 40))
sketch3.addConstraint(Sketcher.Constraint("Equal", 40, 42))
sketch3.addConstraint(Sketcher.Constraint("Equal", 42, 44))
sketch3.addConstraint(Sketcher.Constraint("Equal", 44, 46))
sketch3.addConstraint(Sketcher.Constraint("Equal", 46, 48))
sketch3.addConstraint(Sketcher.Constraint("Equal", 48, 50))
sketch3.addConstraint(Sketcher.Constraint("Equal", 50, 52))
sketch3.addConstraint(Sketcher.Constraint("Equal", 52, 54))
sketch3.addConstraint(Sketcher.Constraint("Equal", 54, 56))
sketch3.addConstraint(Sketcher.Constraint("Equal", 56, 58))
sketch3.addConstraint(Sketcher.Constraint("Equal", 58, 60))
sketch3.addConstraint(Sketcher.Constraint("Parallel", 3, 5))
sketch3.addConstraint(Sketcher.Constraint("Parallel", 7, 9))
sketch3.addConstraint(Sketcher.Constraint("Parallel", 11, 13))
sketch3.addConstraint(Sketcher.Constraint("Parallel", 15, 17))
sketch3.addConstraint(Sketcher.Constraint("Parallel", 19, 21))
sketch3.addConstraint(Sketcher.Constraint("Parallel", 23, 25))
sketch3.addConstraint(Sketcher.Constraint("Parallel", 27, 29))
sketch3.addConstraint(Sketcher.Constraint("Parallel", 31, 33))
sketch3.addConstraint(Sketcher.Constraint("Parallel", 35, 37))
sketch3.addConstraint(Sketcher.Constraint("Parallel", 39, 41))
sketch3.addConstraint(Sketcher.Constraint("Parallel", 43, 45))
sketch3.addConstraint(Sketcher.Constraint("Parallel", 47, 49))
sketch3.addConstraint(Sketcher.Constraint("Parallel", 51, 53))
sketch3.addConstraint(Sketcher.Constraint("Parallel", 55, 57))
sketch3.addConstraint(Sketcher.Constraint("Equal", 23, 45))
sketch3.addConstraint(Sketcher.Constraint("Equal", 47, 49))
sketch3.addConstraint(Sketcher.Constraint("Equal", 51, 53))
sketch3.addConstraint(Sketcher.Constraint("Equal", 55, 57))
sketch3.addConstraint(Sketcher.Constraint("Diameter", 0, 3.2))
sketch3.addConstraint(Sketcher.Constraint("Radius", 2, 2.27))
sketch3.addConstraint(Sketcher.Constraint("DistanceY", -1, 1, 34, 3, 40.262002))
sketch3.addConstraint(Sketcher.Constraint("DistanceX", -1, 1, 26, 3, 4.020401))
sketch3.addConstraint(Sketcher.Constraint("DistanceY", -1, 1, 60, 3, 52.111498))
sketch3.addConstraint(Sketcher.Constraint("DistanceX", -1, 1, 8, 2, 76.184701))
sketch3.addConstraint(Sketcher.Constraint("DistanceY", -1, 1, 28, 2, 59.762498))
sketch3.addConstraint(Sketcher.Constraint("DistanceY", -1, 1, 31, 2, 48.153599))
sketch3.addConstraint(Sketcher.Constraint("DistanceY", -1, 1, 42, 2, 24.8414))
sketch3.addConstraint(Sketcher.Constraint("Distance", 1, 60.70168))
sketch3.addConstraint(Sketcher.Constraint("Distance", 5, 79.197108))
sketch3.addConstraint(Sketcher.Constraint("Distance", 13, 93.463438))
sketch3.addConstraint(Sketcher.Constraint("Distance", 25, 13.29716))
sketch3.addConstraint(Sketcher.Constraint("Distance", 29, 11.15315))
sketch3.addConstraint(Sketcher.Constraint("Distance", 33, 9.009141))
sketch3.addConstraint(Sketcher.Constraint("Distance", 37, 6.865131))
sketch3.addConstraint(Sketcher.Constraint("Distance", 41, 4.721121))
sketch3.addConstraint(Sketcher.Constraint("DistanceX", -1, 1, 0, 3, 99.259718))
sketch3.addConstraint(Sketcher.Constraint("DistanceY", -1, 1, 0, 3, 45.19033))
sketch3.addConstraint(Sketcher.Constraint("DistanceY", -1, 1, 2, 3, 94.090071))
sketch3.addConstraint(Sketcher.Constraint("DistanceX", -1, 1, 4, 3, 64.927018))
sketch3.addConstraint(Sketcher.Constraint("DistanceX", -1, 1, 6, 3, 1.504069))
sketch3.addConstraint(Sketcher.Constraint("DistanceY", -1, 1, 8, 3, 108.65694))
sketch3.addConstraint(Sketcher.Constraint("DistanceY", -1, 1, 14, 3, 67.161911))
sketch3.addConstraint(Sketcher.Constraint("DistanceY", -1, 1, 18, 3, 60.152141))
sketch3.addConstraint(Sketcher.Constraint("DistanceX", -1, 1, 20, 3, 88.137649))
sketch3.addConstraint(Sketcher.Constraint("DistanceX", -1, 1, 22, 3, 83.734511))
sketch3.addConstraint(Sketcher.Constraint("DistanceY", -1, 1, 22, 3, 79.21984))
sketch3.addConstraint(Sketcher.Constraint("DistanceX", -1, 1, 24, 3, 90.072442))
sketch3.addConstraint(Sketcher.Constraint("DistanceX", -1, 1, 30, 3, 7.995789))
sketch3.addConstraint(Sketcher.Constraint("DistanceY", -1, 1, 46, 3, 71.931959))
sketch3.addConstraint(Sketcher.Constraint("DistanceY", -1, 1, 52, 3, 66.687261))
sketch3.addConstraint(Sketcher.Constraint("DistanceX", -1, 1, 54, 3, 89.538889))
sketch3.addConstraint(Sketcher.Constraint("DistanceY", -1, 1, 56, 3, 59.399379))
sketch3.addConstraint(Sketcher.Constraint("DistanceX", -1, 1, 58, 3, 91.473682))
sketch3.addConstraint(Sketcher.Constraint("DistanceX", 9, 2, -1, 1, 3.419178))
sketch3.addConstraint(Sketcher.Constraint("DistanceY", -1, 1, 9, 2, 77.243631))
sketch3.addConstraint(Sketcher.Constraint("DistanceX", -1, 1, 15, 2, 86.899349))
sketch3.addConstraint(Sketcher.Constraint("DistanceX", 17, 2, -1, 1, 0.651479))
sketch3.addConstraint(Sketcher.Constraint("DistanceX", -1, 1, 34, 2, 12.66767))
sketch3.addConstraint(Sketcher.Constraint("DistanceX", -1, 1, 43, 2, 25.111849))
sketch3.addConstraint(Sketcher.Constraint("DistanceX", -1, 1, 50, 2, 88.300588))
sketch3.addConstraint(Sketcher.Constraint("Distance", 9, 91.399295))
sketch3.addConstraint(Sketcher.Constraint("DistanceX", -1, 1, 38, 3, 15.946566))
sketch3.addConstraint(Sketcher.Constraint("DistanceY", -1, 1, 38, 3, 33.631955))
sketch3.addConstraint(Sketcher.Constraint("DistanceX", -1, 1, 46, 3, 85.669304))
pocket2 = body.newObject("PartDesign::Pocket", "Pocket001")
pocket2.Profile = sketch3
pocket2.Length = 2

doc.recompute()
